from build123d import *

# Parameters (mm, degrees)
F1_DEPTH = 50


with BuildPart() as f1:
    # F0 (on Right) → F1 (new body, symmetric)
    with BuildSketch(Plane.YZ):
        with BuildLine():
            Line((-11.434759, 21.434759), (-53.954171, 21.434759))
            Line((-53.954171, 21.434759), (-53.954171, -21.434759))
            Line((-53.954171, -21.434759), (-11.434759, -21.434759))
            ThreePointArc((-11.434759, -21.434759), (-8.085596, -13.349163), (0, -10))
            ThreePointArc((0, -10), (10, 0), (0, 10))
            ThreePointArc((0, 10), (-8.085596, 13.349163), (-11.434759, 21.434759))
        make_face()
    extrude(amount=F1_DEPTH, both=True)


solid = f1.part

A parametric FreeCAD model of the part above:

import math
import FreeCAD as App
import Part
import Sketcher
from FreeCAD import Vector

doc = App.newDocument("Part")
body = doc.addObject("PartDesign::Body", "Body")

# Sketch on YZ plane
sketch1 = body.newObject("Sketcher::SketchObject", "Sketch")
sketch1.AttachmentSupport = (doc.getObject("YZ_Plane"), [""])
sketch1.MapMode = "FlatFace"
sketch1.addGeometry([
    Part.LineSegment(Vector(-11, 21, 0), Vector(-54, 21, 0)),  # 0
    Part.LineSegment(Vector(-54, 21, 0), Vector(-54, -21, 0)),  # 1
    Part.LineSegment(Vector(-54, -21, 0), Vector(-11, -21, 0)),  # 2
    Part.ArcOfCircle(Part.Circle(Vector(0, -21, 0), Vector(0, 0, 1), 11), math.radians(90), math.radians(180)),  # 3
    Part.ArcOfCircle(Part.Circle(Vector(0, 0, 0), Vector(0, 0, 1), 10), math.radians(-90), math.radians(90)),  # 4
    Part.ArcOfCircle(Part.Circle(Vector(0, 21, 0), Vector(0, 0, 1), 11), math.radians(180), math.radians(270)),  # 5
], False)
sketch1.addConstraint([
    Sketcher.Constraint("Coincident", 0, 2, 1, 1),
    Sketcher.Constraint("Coincident", 1, 2, 2, 1),
    Sketcher.Constraint("Coincident", 2, 2, 3, 2),
    Sketcher.Constraint("Tangent", 3, 1, 4, 1),
    Sketcher.Constraint("Tangent", 4, 2, 5, 2),
    Sketcher.Constraint("Coincident", 5, 1, 0, 1),
    Sketcher.Constraint("Horizontal", 0),
    Sketcher.Constraint("Vertical", 1),
    Sketcher.Constraint("Horizontal", 2),
    Sketcher.Constraint("Coincident", 4, 3, -1, 1),
    Sketcher.Constraint("Equal", 3, 5),
    Sketcher.Constraint("Symmetric", 2, 2, 5, 1, -1),
    Sketcher.Constraint("PointOnObject", 3, 3, -2),
    Sketcher.Constraint("Horizontal", 5, 3, 0, 2),
    Sketcher.Constraint("Radius", 4, 10.0),
    Sketcher.Constraint("Radius", 3, 11.434758),
    Sketcher.Constraint("DistanceX", 0, 2, 0, 1, 42.519412),
])
pad1 = body.newObject("PartDesign::Pad", "Pad")
pad1.Profile = sketch1
pad1.Length = 100
pad1.Midplane = True

doc.recompute()
